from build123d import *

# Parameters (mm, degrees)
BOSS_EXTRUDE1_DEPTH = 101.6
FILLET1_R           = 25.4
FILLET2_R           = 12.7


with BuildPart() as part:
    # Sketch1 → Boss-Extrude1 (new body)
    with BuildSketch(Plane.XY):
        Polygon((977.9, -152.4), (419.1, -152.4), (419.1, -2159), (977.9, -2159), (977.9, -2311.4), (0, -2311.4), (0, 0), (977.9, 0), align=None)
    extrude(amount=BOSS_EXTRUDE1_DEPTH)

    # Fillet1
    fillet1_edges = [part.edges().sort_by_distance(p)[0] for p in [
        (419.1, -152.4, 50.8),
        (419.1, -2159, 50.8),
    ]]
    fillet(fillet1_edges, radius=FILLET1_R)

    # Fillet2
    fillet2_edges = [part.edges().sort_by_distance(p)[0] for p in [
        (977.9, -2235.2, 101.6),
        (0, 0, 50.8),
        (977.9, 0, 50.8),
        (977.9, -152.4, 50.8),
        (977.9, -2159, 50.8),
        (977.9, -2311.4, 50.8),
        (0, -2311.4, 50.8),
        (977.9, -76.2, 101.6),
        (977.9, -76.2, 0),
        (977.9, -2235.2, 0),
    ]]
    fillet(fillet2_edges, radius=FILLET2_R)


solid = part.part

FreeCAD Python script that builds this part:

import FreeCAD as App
import Part
import Sketcher

V = App.Vector
Q = App.Units.Quantity


def edges_at(feature, points):
    """Names of the edges that pass closest to the given points."""
    edges = feature.Shape.Edges
    near = lambda p: min(range(len(edges)), key=lambda i: edges[i].distToShape(Part.Vertex(*p))[0])
    return sorted({f"Edge{near(p) + 1}" for p in points})

doc = App.newDocument("Part")
body = doc.addObject("PartDesign::Body", "Body")

# Sketch on XY plane
sketch1 = body.newObject("Sketcher::SketchObject", "Sketch")
sketch1.AttachmentSupport = (doc.getObject("XY_Plane"), [""])
sketch1.MapMode = "FlatFace"
sketch1.addGeometry(Part.LineSegment(V(419, -152, 0), V(978, -152, 0)), False)
sketch1.addGeometry(Part.LineSegment(V(978, -152, 0), V(978, 0, 0)), False)
sketch1.addGeometry(Part.LineSegment(V(978, 0, 0), V(0, 0, 0)), False)
sketch1.addGeometry(Part.LineSegment(V(0, 0, 0), V(0, -2311, 0)), False)
sketch1.addGeometry(Part.LineSegment(V(0, -2311, 0), V(978, -2311, 0)), False)
sketch1.addGeometry(Part.LineSegment(V(978, -2311, 0), V(978, -2159, 0)), False)
sketch1.addGeometry(Part.LineSegment(V(978, -2159, 0), V(419, -2159, 0)), False)
sketch1.addGeometry(Part.LineSegment(V(419, -2159, 0), V(419, -152, 0)), False)
sketch1.addConstraint(Sketcher.Constraint("Coincident", 0, 2, 1, 1))
sketch1.addConstraint(Sketcher.Constraint("Coincident", 1, 2, 2, 1))
sketch1.addConstraint(Sketcher.Constraint("Coincident", 2, 2, 3, 1))
sketch1.addConstraint(Sketcher.Constraint("Coincident", 3, 2, 4, 1))
sketch1.addConstraint(Sketcher.Constraint("Coincident", 4, 2, 5, 1))
sketch1.addConstraint(Sketcher.Constraint("Coincident", 5, 2, 6, 1))
sketch1.addConstraint(Sketcher.Constraint("Coincident", 6, 2, 7, 1))
sketch1.addConstraint(Sketcher.Constraint("Coincident", 7, 2, 0, 1))
sketch1.addConstraint(Sketcher.Constraint("Horizontal", 0))
sketch1.addConstraint(Sketcher.Constraint("Vertical", 1))
sketch1.addConstraint(Sketcher.Constraint("Horizontal", 2))
sketch1.addConstraint(Sketcher.Constraint("Vertical", 3))
sketch1.addConstraint(Sketcher.Constraint("Horizontal", 4))
sketch1.addConstraint(Sketcher.Constraint("Vertical", 5))
sketch1.addConstraint(Sketcher.Constraint("Horizontal", 6))
sketch1.addConstraint(Sketcher.Constraint("Vertical", 7))
sketch1.addConstraint(Sketcher.Constraint("Coincident", 2, 2, -1, 1))
sketch1.addConstraint(Sketcher.Constraint("Vertical", 1, 2, 4, 2))
sketch1.addConstraint(Sketcher.Constraint("Equal", 1, 5))
sketch1.addConstraint(Sketcher.Constraint("DistanceX", 0, 1, 0, 2, Q("22 in")))
sketch1.addConstraint(Sketcher.Constraint("DistanceY", 1, 1, 1, 2, Q("6 in")))
sketch1.addConstraint(Sketcher.Constraint("DistanceY", 3, 2, 3, 1, Q("91 in")))
sketch1.addConstraint(Sketcher.Constraint("DistanceX", 2, 2, 2, 1, Q("38.5 in")))
pad1 = body.newObject("PartDesign::Pad", "Pad")
pad1.Profile = sketch1
pad1.Length = Q("4 in")
doc.recompute()

fillet = body.newObject("PartDesign::Fillet", "Fillet")
fillet.Base = (pad1, edges_at(pad1, [(419.1, -152.4, 50.8), (419.1, -2159, 50.8)]))
fillet.Radius = Q("1 in")
doc.recompute()

fillet2 = body.newObject("PartDesign::Fillet", "Fillet001")
fillet2.Base = (fillet, edges_at(fillet, [
    (977.9, -2235.2, 101.6),
    (0, 0, 50.8),
    (977.9, 0, 50.8),
    (977.9, -152.4, 50.8),
    (977.9, -2159, 50.8),
    (977.9, -2311.4, 50.8),
    (0, -2311.4, 50.8),
    (977.9, -76.2, 101.6),
    (977.9, -76.2, 0),
    (977.9, -2235.2, 0),
]))
fillet2.Radius = Q("0.5 in")

doc.recompute()
